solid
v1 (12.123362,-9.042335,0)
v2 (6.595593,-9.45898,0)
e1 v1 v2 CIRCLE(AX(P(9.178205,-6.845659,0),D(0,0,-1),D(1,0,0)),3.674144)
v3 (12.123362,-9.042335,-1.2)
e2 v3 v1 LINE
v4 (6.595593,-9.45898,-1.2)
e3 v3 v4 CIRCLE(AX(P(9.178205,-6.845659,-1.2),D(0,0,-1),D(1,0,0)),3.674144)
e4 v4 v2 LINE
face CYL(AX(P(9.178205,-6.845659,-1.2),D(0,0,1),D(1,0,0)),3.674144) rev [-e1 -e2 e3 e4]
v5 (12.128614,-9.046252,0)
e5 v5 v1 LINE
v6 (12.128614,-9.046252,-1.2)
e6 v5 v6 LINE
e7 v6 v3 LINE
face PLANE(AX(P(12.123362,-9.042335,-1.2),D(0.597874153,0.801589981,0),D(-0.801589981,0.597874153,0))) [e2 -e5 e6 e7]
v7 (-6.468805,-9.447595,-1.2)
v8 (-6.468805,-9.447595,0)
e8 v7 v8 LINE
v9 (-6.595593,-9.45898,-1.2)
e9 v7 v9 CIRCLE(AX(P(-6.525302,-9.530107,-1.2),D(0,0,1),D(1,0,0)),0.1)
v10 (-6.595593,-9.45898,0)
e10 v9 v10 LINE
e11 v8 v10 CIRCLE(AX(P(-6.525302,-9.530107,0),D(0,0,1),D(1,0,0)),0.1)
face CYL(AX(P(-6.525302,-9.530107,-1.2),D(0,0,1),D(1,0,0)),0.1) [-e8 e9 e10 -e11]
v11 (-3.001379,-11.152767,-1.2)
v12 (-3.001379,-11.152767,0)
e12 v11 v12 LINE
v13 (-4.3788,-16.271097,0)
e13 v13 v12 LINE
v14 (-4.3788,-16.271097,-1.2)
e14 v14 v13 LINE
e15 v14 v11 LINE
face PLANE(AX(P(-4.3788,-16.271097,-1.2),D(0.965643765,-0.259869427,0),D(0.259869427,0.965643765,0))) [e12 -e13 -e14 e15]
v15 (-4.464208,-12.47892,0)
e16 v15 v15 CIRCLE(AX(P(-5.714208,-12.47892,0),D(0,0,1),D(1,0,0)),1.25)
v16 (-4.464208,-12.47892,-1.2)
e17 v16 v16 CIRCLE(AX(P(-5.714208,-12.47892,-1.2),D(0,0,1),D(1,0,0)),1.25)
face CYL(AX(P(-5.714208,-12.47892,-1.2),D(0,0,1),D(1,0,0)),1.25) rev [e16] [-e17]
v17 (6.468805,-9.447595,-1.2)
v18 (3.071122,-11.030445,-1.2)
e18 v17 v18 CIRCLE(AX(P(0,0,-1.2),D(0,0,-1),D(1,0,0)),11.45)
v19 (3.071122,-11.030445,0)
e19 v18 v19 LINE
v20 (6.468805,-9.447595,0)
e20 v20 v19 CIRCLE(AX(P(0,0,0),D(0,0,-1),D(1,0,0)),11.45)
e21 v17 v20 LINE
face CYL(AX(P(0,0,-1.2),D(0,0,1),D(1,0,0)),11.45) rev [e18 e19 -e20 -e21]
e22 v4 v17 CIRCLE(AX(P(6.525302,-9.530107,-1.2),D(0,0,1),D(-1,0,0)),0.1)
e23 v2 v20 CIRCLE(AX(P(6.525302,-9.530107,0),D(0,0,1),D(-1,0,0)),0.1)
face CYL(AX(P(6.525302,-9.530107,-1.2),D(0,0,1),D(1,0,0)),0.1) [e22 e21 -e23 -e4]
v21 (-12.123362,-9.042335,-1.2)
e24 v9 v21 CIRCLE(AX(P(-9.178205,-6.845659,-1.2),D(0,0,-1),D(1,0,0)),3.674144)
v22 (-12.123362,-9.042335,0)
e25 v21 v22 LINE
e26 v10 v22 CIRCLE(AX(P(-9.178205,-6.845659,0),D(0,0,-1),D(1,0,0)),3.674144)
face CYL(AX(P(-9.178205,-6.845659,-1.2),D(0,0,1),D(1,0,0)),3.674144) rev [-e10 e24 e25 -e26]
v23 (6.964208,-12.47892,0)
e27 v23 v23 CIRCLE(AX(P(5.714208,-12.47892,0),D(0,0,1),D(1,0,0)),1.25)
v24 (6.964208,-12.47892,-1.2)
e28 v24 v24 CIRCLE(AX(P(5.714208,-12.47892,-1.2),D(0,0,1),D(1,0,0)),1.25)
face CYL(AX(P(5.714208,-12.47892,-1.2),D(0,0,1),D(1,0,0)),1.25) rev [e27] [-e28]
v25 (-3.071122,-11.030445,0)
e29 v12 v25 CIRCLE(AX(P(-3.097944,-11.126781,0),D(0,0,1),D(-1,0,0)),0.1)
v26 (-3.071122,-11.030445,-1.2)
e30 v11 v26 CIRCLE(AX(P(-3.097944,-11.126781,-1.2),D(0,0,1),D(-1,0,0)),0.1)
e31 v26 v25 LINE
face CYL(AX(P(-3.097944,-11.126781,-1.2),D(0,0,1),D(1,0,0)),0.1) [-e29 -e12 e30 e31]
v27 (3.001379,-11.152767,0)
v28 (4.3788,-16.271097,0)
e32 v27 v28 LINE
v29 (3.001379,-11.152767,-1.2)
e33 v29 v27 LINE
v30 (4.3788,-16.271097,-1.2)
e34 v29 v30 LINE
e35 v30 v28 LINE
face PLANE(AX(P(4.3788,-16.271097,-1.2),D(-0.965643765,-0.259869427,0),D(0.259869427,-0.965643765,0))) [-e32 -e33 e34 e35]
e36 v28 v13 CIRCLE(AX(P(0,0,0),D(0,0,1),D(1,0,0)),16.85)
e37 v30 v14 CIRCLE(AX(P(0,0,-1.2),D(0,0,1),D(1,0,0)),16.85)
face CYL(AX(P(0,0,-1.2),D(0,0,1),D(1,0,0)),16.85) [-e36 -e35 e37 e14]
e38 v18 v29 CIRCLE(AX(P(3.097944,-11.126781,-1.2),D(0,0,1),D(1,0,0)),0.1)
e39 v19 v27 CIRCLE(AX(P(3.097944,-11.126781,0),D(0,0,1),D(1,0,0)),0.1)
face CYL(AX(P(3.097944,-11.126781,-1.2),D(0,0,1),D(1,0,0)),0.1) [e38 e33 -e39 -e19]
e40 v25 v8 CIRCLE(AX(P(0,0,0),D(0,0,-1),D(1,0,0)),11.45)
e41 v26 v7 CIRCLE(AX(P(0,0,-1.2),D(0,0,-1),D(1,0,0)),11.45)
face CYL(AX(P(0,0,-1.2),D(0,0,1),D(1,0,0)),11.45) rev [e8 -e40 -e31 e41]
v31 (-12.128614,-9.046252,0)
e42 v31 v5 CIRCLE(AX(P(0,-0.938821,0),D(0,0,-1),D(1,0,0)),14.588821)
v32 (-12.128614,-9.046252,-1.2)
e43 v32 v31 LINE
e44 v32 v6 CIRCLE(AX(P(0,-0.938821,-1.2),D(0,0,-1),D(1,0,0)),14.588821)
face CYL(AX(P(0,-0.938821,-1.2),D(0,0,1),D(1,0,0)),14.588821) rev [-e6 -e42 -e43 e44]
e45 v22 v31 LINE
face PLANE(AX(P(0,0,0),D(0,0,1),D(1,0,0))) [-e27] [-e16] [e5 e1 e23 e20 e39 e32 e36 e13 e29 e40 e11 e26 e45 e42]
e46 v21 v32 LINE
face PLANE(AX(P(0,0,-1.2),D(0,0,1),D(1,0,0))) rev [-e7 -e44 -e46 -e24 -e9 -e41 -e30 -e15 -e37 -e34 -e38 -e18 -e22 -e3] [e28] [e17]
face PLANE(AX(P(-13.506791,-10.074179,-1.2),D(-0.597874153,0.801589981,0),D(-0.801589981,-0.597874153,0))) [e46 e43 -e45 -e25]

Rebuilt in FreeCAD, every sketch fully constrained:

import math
import FreeCAD as App
import Part
import Sketcher
from FreeCAD import Vector

doc = App.newDocument("Part")
body = doc.addObject("PartDesign::Body", "Body")

sketch1 = body.newObject("Sketcher::SketchObject", "Sketch")
sketch1.AttachmentSupport = (doc.getObject("XY_Plane"), [""])
sketch1.MapMode = "FlatFace"
sketch1.addGeometry([
    Part.LineSegment(Vector(3.5, -13.1, 0), Vector(4.4, -16.3, 0)),
    Part.ArcOfCircle(Part.Circle(Vector(0, 0, 0), Vector(0, 0, 1), 16.9), math.radians(-75), math.radians(255)),
    Part.LineSegment(Vector(-4.4, -16.3, 0), Vector(-3.5, -13.1, 0)),
    Part.ArcOfCircle(Part.Circle(Vector(-5.7, -12.5, 0), Vector(0, 0, 1), 2.3), math.radians(-15), math.radians(136)),
    Part.ArcOfCircle(Part.Circle(Vector(-9, -9.3, 0), Vector(0, 0, 1), 2.3), math.radians(-137), math.radians(-44)),
    Part.ArcOfCircle(Part.Circle(Vector(0, -0.9, 0), Vector(0, 0, 1), 14.6), math.radians(-43), math.radians(223)),
    Part.ArcOfCircle(Part.Circle(Vector(9, -9.3, 0), Vector(0, 0, 1), 2.3), math.radians(-136), math.radians(-43)),
    Part.ArcOfCircle(Part.Circle(Vector(5.7, -12.5, 0), Vector(0, 0, 1), 2.3), math.radians(44), math.radians(195)),
    Part.Circle(Vector(5.7, -12.5, 0), Vector(0, 0, 1), 1.2),
    Part.Circle(Vector(-5.7, -12.5, 0), Vector(0, 0, 1), 1.2),
], False)
sketch1.addConstraint([
    Sketcher.Constraint("Coincident", 0, 2, 1, 1),
    Sketcher.Constraint("Coincident", 1, 2, 2, 1),
    Sketcher.Constraint("Tangent", 2, 2, 3, 1),
    Sketcher.Constraint("Tangent", 3, 2, 4, 2),
    Sketcher.Constraint("Tangent", 4, 1, 5, 2),
    Sketcher.Constraint("Tangent", 5, 1, 6, 2),
    Sketcher.Constraint("Tangent", 6, 1, 7, 1),
    Sketcher.Constraint("Tangent", 7, 2, 0, 1),
    Sketcher.Constraint("Coincident", 1, 3, -1, 1),
    Sketcher.Constraint("Coincident", 8, 3, 7, 3),
    Sketcher.Constraint("Coincident", 9, 3, 3, 3),
    Sketcher.Constraint("Equal", 3, 4),
    Sketcher.Constraint("Equal", 4, 6),
    Sketcher.Constraint("Equal", 6, 7),
    Sketcher.Constraint("Equal", 8, 9),
    Sketcher.Constraint("Symmetric", 4, 3, 6, 3, -2),
    Sketcher.Constraint("Symmetric", 2, 2, 7, 2, -2),
    Sketcher.Constraint("Diameter", 8, 2.5),
    Sketcher.Constraint("Radius", 1, 16.85),
    Sketcher.Constraint("Radius", 3, 2.275),
    Sketcher.Constraint("Radius", 5, 14.588821),
    Sketcher.Constraint("DistanceX", -1, 1, 0, 2, 4.3788),
    Sketcher.Constraint("DistanceY", 3, 3, 5, 3, 11.540099),
    Sketcher.Constraint("Distance", 0, 3.314861),
    Sketcher.Constraint("DistanceX", 3, 3, -1, 1, 5.714208),
])
pad1 = body.newObject("PartDesign::Pad", "Pad")
pad1.Profile = sketch1
pad1.Length = 1.2
pad1.Reversed = True

sketch2 = body.newObject("Sketcher::SketchObject", "Sketch001")
sketch2.AttachmentSupport = (doc.getObject("XY_Plane"), [""])
sketch2.MapMode = "FlatFace"
sketch2.addGeometry([
    Part.LineSegment(Vector(3, -11.15, 0), Vector(4.38, -16.27, 0)),
    Part.ArcOfCircle(Part.Circle(Vector(0, 0, 0), Vector(0, 0, 1), 16.85), math.radians(-75), math.radians(-37)),
    Part.LineSegment(Vector(13.51, -10.07, 0), Vector(12.12, -9.04, 0)),
    Part.ArcOfCircle(Part.Circle(Vector(9.18, -6.85, 0), Vector(0, 0, 1), 3.67), math.radians(-135), math.radians(-37)),
    Part.ArcOfCircle(Part.Circle(Vector(6.53, -9.53, 0), Vector(0, 0, 1), 0.1), math.radians(45), math.radians(124)),
    Part.ArcOfCircle(Part.Circle(Vector(0, 0, 0), Vector(0, 0, 1), 11.45), math.radians(-74.44), math.radians(-55.6)),
    Part.ArcOfCircle(Part.Circle(Vector(3.1, -11.13, 0), Vector(0, 0, 1), 0.1), math.radians(106), math.radians(195)),
    Part.Circle(Vector(5.71, -12.48, 0), Vector(0, 0, 1), 1.25),
    Part.LineSegment(Vector(-4.38, -16.27, 0), Vector(-3, -11.15, 0)),
    Part.ArcOfCircle(Part.Circle(Vector(-3.1, -11.13, 0), Vector(0, 0, 1), 0.1), math.radians(-15), math.radians(74)),
    Part.ArcOfCircle(Part.Circle(Vector(0, 0, 0), Vector(0, 0, 1), 11.45), math.radians(-124.4), math.radians(-105.56)),
    Part.ArcOfCircle(Part.Circle(Vector(-6.53, -9.53, 0), Vector(0, 0, 1), 0.1), math.radians(56), math.radians(135)),
    Part.ArcOfCircle(Part.Circle(Vector(-9.18, -6.85, 0), Vector(0, 0, 1), 3.67), math.radians(-143), math.radians(-45)),
    Part.LineSegment(Vector(-12.12, -9.04, 0), Vector(-13.51, -10.07, 0)),
    Part.ArcOfCircle(Part.Circle(Vector(0, 0, 0), Vector(0, 0, 1), 16.85), math.radians(-143), math.radians(-105)),
    Part.Circle(Vector(-5.71, -12.48, 0), Vector(0, 0, 1), 1.25),
], False)
sketch2.addConstraint([
    Sketcher.Constraint("Coincident", 0, 2, 1, 1),
    Sketcher.Constraint("Coincident", 1, 2, 2, 1),
    Sketcher.Constraint("Coincident", 2, 2, 3, 2),
    Sketcher.Constraint("Tangent", 3, 1, 4, 1),
    Sketcher.Constraint("Tangent", 4, 2, 5, 2),
    Sketcher.Constraint("Tangent", 5, 1, 6, 1),
    Sketcher.Constraint("Tangent", 6, 2, 0, 1),
    Sketcher.Constraint("Tangent", 8, 2, 9, 1),
    Sketcher.Constraint("Tangent", 9, 2, 10, 2),
    Sketcher.Constraint("Tangent", 10, 1, 11, 1),
    Sketcher.Constraint("Tangent", 11, 2, 12, 2),
    Sketcher.Constraint("Coincident", 12, 1, 13, 1),
    Sketcher.Constraint("Coincident", 13, 2, 14, 1),
    Sketcher.Constraint("Coincident", 14, 2, 8, 1),
    Sketcher.Constraint("Coincident", 1, 3, -1, 1),
    Sketcher.Constraint("Coincident", 5, 3, -1, 1),
    Sketcher.Constraint("Coincident", 10, 3, -1, 1),
    Sketcher.Constraint("Coincident", 14, 3, -1, 1),
    Sketcher.Constraint("Equal", 4, 6),
    Sketcher.Constraint("Equal", 6, 9),
    Sketcher.Constraint("Equal", 5, 10),
    Sketcher.Constraint("Equal", 9, 11),
    Sketcher.Constraint("Equal", 3, 12),
    Sketcher.Constraint("Equal", 1, 14),
    Sketcher.Constraint("Equal", 7, 15),
    Sketcher.Constraint("Symmetric", 3, 3, 12, 3, -2),
    Sketcher.Constraint("Symmetric", 7, 3, 15, 3, -2),
    Sketcher.Constraint("Symmetric", 6, 2, 8, 2, -2),
    Sketcher.Constraint("Horizontal", 2, 2, 12, 1),
    Sketcher.Constraint("Horizontal", 1, 2, 13, 2),
    Sketcher.Constraint("Diameter", 7, 2.5),
    Sketcher.Constraint("Radius", 4, 0.1),
    Sketcher.Constraint("Radius", 1, 16.85),
    Sketcher.Constraint("Radius", 5, 11.45),
    Sketcher.Constraint("Radius", 3, 3.674144),
    Sketcher.Constraint("DistanceX", -1, 1, 4, 3, 6.525302),
    Sketcher.Constraint("DistanceX", -1, 1, 0, 2, 4.3788),
    Sketcher.Constraint("DistanceY", 6, 3, 1, 2, 1.052601),
    Sketcher.Constraint("DistanceY", 6, 3, 3, 1, 1.667801),
    Sketcher.Constraint("DistanceX", 4, 2, 3, 3, 2.7094),
    Sketcher.Constraint("DistanceX", -1, 1, 7, 3, 5.714208),
    Sketcher.Constraint("DistanceY", 7, 3, -1, 1, 12.47892),
    Sketcher.Constraint("DistanceX", -1, 1, 2, 2, 12.123362),
])
pad2 = body.newObject("PartDesign::Pad", "Pad001")
pad2.Profile = sketch2
pad2.Length = 1.2
pad2.Reversed = True

doc.recompute()
